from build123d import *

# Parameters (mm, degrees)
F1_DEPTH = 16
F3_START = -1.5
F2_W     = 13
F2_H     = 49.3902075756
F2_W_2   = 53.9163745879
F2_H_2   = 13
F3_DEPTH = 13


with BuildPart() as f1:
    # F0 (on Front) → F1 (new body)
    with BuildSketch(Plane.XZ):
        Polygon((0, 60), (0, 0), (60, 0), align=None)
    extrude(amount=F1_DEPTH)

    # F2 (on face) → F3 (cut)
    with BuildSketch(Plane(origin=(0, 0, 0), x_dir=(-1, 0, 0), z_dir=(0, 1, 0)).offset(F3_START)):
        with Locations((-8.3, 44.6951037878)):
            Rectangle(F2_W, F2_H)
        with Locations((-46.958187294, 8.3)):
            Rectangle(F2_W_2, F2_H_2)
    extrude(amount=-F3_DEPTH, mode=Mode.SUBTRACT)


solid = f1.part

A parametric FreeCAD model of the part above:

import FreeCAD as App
import Part
import Sketcher

V = App.Vector
Q = App.Units.Quantity


def add_polygon(sketch, points):
    """Adds a closed chain of lines whose ends are joined by coincident constraints."""
    first, n = sketch.GeometryCount, len(points)
    for a, b in zip(points, points[1:] + points[:1]):
        sketch.addGeometry(Part.LineSegment(App.Vector(*a, 0), App.Vector(*b, 0)), False)
    for i in range(n):
        sketch.addConstraint(Sketcher.Constraint("Coincident", first + i, 2, first + (i + 1) % n, 1))

doc = App.newDocument("Part")
body = doc.addObject("PartDesign::Body", "Body")

# Sketch on XZ plane
sketch1 = doc.addObject("Sketcher::SketchObject", "Sketch")
body.addObject(sketch1)
sketch1.AttachmentSupport = (doc.XZ_Plane, [""])
sketch1.MapMode = "FlatFace"
add_polygon(sketch1, [(0, 60), (0, 0), (60, 0)])  # lines 0-2
sketch1.addConstraint(Sketcher.Constraint("Vertical", 0))
sketch1.addConstraint(Sketcher.Constraint("Horizontal", 1))
sketch1.addConstraint(Sketcher.Constraint("Coincident", 0, 2, -1, 1))
sketch1.addConstraint(Sketcher.Constraint("Equal", 1, 0))
sketch1.addConstraint(Sketcher.Constraint("DistanceX", 1, 1, 1, 2, Q("60 mm")))
pad1 = doc.addObject("PartDesign::Pad", "Pad")
body.addObject(pad1)
pad1.Profile = sketch1
pad1.Length = 16

# Sketch on XZ plane
sketch2 = doc.addObject("Sketcher::SketchObject", "Sketch001")
body.addObject(sketch2)
sketch2.AttachmentSupport = (doc.XZ_Plane, [""])
sketch2.MapMode = "FlatFace"
sketch2.AttachmentOffset = App.Placement(V(0, 0, 1.5), App.Rotation())
add_polygon(sketch2, [(14.8, 69.390208), (14.8, 20), (1.8, 20), (1.8, 69.390208)])  # lines 0-3
add_polygon(sketch2, [(73.916375, 14.8), (73.916375, 1.8), (20, 1.8), (20, 14.8)])  # lines 4-7
sketch2.addConstraint(Sketcher.Constraint("Vertical", 0))
sketch2.addConstraint(Sketcher.Constraint("Horizontal", 1))
sketch2.addConstraint(Sketcher.Constraint("Vertical", 2))
sketch2.addConstraint(Sketcher.Constraint("Horizontal", 3))
sketch2.addConstraint(Sketcher.Constraint("Vertical", 4))
sketch2.addConstraint(Sketcher.Constraint("Horizontal", 5))
sketch2.addConstraint(Sketcher.Constraint("Vertical", 6))
sketch2.addConstraint(Sketcher.Constraint("Horizontal", 7))
sketch2.addConstraint(Sketcher.Constraint("Equal", 3, 4))
sketch2.addConstraint(Sketcher.Constraint("DistanceX", 1, 2, 1, 1, Q("13 mm")))
sketch2.addConstraint(Sketcher.Constraint("DistanceY", -1, 1, 0, 2, Q("20 mm")))
sketch2.addConstraint(Sketcher.Constraint("DistanceX", -1, 1, 5, 2, Q("20 mm")))
sketch2.addConstraint(Sketcher.Constraint("DistanceX", -1, 1, 0, 2, Q("14.8 mm")))
sketch2.addConstraint(Sketcher.Constraint("DistanceY", -1, 1, 4, 2, Q("1.8 mm")))
sketch2.addConstraint(Sketcher.Constraint("DistanceX", 5, 2, 5, 1, Q("53.916375 mm")))
sketch2.addConstraint(Sketcher.Constraint("DistanceY", 0, 2, 0, 1, Q("49.390208 mm")))
pocket1 = doc.addObject("PartDesign::Pocket", "Pocket")
body.addObject(pocket1)
pocket1.Profile = sketch2
pocket1.Length = 13
pocket1.Reversed = True

doc.recompute()
